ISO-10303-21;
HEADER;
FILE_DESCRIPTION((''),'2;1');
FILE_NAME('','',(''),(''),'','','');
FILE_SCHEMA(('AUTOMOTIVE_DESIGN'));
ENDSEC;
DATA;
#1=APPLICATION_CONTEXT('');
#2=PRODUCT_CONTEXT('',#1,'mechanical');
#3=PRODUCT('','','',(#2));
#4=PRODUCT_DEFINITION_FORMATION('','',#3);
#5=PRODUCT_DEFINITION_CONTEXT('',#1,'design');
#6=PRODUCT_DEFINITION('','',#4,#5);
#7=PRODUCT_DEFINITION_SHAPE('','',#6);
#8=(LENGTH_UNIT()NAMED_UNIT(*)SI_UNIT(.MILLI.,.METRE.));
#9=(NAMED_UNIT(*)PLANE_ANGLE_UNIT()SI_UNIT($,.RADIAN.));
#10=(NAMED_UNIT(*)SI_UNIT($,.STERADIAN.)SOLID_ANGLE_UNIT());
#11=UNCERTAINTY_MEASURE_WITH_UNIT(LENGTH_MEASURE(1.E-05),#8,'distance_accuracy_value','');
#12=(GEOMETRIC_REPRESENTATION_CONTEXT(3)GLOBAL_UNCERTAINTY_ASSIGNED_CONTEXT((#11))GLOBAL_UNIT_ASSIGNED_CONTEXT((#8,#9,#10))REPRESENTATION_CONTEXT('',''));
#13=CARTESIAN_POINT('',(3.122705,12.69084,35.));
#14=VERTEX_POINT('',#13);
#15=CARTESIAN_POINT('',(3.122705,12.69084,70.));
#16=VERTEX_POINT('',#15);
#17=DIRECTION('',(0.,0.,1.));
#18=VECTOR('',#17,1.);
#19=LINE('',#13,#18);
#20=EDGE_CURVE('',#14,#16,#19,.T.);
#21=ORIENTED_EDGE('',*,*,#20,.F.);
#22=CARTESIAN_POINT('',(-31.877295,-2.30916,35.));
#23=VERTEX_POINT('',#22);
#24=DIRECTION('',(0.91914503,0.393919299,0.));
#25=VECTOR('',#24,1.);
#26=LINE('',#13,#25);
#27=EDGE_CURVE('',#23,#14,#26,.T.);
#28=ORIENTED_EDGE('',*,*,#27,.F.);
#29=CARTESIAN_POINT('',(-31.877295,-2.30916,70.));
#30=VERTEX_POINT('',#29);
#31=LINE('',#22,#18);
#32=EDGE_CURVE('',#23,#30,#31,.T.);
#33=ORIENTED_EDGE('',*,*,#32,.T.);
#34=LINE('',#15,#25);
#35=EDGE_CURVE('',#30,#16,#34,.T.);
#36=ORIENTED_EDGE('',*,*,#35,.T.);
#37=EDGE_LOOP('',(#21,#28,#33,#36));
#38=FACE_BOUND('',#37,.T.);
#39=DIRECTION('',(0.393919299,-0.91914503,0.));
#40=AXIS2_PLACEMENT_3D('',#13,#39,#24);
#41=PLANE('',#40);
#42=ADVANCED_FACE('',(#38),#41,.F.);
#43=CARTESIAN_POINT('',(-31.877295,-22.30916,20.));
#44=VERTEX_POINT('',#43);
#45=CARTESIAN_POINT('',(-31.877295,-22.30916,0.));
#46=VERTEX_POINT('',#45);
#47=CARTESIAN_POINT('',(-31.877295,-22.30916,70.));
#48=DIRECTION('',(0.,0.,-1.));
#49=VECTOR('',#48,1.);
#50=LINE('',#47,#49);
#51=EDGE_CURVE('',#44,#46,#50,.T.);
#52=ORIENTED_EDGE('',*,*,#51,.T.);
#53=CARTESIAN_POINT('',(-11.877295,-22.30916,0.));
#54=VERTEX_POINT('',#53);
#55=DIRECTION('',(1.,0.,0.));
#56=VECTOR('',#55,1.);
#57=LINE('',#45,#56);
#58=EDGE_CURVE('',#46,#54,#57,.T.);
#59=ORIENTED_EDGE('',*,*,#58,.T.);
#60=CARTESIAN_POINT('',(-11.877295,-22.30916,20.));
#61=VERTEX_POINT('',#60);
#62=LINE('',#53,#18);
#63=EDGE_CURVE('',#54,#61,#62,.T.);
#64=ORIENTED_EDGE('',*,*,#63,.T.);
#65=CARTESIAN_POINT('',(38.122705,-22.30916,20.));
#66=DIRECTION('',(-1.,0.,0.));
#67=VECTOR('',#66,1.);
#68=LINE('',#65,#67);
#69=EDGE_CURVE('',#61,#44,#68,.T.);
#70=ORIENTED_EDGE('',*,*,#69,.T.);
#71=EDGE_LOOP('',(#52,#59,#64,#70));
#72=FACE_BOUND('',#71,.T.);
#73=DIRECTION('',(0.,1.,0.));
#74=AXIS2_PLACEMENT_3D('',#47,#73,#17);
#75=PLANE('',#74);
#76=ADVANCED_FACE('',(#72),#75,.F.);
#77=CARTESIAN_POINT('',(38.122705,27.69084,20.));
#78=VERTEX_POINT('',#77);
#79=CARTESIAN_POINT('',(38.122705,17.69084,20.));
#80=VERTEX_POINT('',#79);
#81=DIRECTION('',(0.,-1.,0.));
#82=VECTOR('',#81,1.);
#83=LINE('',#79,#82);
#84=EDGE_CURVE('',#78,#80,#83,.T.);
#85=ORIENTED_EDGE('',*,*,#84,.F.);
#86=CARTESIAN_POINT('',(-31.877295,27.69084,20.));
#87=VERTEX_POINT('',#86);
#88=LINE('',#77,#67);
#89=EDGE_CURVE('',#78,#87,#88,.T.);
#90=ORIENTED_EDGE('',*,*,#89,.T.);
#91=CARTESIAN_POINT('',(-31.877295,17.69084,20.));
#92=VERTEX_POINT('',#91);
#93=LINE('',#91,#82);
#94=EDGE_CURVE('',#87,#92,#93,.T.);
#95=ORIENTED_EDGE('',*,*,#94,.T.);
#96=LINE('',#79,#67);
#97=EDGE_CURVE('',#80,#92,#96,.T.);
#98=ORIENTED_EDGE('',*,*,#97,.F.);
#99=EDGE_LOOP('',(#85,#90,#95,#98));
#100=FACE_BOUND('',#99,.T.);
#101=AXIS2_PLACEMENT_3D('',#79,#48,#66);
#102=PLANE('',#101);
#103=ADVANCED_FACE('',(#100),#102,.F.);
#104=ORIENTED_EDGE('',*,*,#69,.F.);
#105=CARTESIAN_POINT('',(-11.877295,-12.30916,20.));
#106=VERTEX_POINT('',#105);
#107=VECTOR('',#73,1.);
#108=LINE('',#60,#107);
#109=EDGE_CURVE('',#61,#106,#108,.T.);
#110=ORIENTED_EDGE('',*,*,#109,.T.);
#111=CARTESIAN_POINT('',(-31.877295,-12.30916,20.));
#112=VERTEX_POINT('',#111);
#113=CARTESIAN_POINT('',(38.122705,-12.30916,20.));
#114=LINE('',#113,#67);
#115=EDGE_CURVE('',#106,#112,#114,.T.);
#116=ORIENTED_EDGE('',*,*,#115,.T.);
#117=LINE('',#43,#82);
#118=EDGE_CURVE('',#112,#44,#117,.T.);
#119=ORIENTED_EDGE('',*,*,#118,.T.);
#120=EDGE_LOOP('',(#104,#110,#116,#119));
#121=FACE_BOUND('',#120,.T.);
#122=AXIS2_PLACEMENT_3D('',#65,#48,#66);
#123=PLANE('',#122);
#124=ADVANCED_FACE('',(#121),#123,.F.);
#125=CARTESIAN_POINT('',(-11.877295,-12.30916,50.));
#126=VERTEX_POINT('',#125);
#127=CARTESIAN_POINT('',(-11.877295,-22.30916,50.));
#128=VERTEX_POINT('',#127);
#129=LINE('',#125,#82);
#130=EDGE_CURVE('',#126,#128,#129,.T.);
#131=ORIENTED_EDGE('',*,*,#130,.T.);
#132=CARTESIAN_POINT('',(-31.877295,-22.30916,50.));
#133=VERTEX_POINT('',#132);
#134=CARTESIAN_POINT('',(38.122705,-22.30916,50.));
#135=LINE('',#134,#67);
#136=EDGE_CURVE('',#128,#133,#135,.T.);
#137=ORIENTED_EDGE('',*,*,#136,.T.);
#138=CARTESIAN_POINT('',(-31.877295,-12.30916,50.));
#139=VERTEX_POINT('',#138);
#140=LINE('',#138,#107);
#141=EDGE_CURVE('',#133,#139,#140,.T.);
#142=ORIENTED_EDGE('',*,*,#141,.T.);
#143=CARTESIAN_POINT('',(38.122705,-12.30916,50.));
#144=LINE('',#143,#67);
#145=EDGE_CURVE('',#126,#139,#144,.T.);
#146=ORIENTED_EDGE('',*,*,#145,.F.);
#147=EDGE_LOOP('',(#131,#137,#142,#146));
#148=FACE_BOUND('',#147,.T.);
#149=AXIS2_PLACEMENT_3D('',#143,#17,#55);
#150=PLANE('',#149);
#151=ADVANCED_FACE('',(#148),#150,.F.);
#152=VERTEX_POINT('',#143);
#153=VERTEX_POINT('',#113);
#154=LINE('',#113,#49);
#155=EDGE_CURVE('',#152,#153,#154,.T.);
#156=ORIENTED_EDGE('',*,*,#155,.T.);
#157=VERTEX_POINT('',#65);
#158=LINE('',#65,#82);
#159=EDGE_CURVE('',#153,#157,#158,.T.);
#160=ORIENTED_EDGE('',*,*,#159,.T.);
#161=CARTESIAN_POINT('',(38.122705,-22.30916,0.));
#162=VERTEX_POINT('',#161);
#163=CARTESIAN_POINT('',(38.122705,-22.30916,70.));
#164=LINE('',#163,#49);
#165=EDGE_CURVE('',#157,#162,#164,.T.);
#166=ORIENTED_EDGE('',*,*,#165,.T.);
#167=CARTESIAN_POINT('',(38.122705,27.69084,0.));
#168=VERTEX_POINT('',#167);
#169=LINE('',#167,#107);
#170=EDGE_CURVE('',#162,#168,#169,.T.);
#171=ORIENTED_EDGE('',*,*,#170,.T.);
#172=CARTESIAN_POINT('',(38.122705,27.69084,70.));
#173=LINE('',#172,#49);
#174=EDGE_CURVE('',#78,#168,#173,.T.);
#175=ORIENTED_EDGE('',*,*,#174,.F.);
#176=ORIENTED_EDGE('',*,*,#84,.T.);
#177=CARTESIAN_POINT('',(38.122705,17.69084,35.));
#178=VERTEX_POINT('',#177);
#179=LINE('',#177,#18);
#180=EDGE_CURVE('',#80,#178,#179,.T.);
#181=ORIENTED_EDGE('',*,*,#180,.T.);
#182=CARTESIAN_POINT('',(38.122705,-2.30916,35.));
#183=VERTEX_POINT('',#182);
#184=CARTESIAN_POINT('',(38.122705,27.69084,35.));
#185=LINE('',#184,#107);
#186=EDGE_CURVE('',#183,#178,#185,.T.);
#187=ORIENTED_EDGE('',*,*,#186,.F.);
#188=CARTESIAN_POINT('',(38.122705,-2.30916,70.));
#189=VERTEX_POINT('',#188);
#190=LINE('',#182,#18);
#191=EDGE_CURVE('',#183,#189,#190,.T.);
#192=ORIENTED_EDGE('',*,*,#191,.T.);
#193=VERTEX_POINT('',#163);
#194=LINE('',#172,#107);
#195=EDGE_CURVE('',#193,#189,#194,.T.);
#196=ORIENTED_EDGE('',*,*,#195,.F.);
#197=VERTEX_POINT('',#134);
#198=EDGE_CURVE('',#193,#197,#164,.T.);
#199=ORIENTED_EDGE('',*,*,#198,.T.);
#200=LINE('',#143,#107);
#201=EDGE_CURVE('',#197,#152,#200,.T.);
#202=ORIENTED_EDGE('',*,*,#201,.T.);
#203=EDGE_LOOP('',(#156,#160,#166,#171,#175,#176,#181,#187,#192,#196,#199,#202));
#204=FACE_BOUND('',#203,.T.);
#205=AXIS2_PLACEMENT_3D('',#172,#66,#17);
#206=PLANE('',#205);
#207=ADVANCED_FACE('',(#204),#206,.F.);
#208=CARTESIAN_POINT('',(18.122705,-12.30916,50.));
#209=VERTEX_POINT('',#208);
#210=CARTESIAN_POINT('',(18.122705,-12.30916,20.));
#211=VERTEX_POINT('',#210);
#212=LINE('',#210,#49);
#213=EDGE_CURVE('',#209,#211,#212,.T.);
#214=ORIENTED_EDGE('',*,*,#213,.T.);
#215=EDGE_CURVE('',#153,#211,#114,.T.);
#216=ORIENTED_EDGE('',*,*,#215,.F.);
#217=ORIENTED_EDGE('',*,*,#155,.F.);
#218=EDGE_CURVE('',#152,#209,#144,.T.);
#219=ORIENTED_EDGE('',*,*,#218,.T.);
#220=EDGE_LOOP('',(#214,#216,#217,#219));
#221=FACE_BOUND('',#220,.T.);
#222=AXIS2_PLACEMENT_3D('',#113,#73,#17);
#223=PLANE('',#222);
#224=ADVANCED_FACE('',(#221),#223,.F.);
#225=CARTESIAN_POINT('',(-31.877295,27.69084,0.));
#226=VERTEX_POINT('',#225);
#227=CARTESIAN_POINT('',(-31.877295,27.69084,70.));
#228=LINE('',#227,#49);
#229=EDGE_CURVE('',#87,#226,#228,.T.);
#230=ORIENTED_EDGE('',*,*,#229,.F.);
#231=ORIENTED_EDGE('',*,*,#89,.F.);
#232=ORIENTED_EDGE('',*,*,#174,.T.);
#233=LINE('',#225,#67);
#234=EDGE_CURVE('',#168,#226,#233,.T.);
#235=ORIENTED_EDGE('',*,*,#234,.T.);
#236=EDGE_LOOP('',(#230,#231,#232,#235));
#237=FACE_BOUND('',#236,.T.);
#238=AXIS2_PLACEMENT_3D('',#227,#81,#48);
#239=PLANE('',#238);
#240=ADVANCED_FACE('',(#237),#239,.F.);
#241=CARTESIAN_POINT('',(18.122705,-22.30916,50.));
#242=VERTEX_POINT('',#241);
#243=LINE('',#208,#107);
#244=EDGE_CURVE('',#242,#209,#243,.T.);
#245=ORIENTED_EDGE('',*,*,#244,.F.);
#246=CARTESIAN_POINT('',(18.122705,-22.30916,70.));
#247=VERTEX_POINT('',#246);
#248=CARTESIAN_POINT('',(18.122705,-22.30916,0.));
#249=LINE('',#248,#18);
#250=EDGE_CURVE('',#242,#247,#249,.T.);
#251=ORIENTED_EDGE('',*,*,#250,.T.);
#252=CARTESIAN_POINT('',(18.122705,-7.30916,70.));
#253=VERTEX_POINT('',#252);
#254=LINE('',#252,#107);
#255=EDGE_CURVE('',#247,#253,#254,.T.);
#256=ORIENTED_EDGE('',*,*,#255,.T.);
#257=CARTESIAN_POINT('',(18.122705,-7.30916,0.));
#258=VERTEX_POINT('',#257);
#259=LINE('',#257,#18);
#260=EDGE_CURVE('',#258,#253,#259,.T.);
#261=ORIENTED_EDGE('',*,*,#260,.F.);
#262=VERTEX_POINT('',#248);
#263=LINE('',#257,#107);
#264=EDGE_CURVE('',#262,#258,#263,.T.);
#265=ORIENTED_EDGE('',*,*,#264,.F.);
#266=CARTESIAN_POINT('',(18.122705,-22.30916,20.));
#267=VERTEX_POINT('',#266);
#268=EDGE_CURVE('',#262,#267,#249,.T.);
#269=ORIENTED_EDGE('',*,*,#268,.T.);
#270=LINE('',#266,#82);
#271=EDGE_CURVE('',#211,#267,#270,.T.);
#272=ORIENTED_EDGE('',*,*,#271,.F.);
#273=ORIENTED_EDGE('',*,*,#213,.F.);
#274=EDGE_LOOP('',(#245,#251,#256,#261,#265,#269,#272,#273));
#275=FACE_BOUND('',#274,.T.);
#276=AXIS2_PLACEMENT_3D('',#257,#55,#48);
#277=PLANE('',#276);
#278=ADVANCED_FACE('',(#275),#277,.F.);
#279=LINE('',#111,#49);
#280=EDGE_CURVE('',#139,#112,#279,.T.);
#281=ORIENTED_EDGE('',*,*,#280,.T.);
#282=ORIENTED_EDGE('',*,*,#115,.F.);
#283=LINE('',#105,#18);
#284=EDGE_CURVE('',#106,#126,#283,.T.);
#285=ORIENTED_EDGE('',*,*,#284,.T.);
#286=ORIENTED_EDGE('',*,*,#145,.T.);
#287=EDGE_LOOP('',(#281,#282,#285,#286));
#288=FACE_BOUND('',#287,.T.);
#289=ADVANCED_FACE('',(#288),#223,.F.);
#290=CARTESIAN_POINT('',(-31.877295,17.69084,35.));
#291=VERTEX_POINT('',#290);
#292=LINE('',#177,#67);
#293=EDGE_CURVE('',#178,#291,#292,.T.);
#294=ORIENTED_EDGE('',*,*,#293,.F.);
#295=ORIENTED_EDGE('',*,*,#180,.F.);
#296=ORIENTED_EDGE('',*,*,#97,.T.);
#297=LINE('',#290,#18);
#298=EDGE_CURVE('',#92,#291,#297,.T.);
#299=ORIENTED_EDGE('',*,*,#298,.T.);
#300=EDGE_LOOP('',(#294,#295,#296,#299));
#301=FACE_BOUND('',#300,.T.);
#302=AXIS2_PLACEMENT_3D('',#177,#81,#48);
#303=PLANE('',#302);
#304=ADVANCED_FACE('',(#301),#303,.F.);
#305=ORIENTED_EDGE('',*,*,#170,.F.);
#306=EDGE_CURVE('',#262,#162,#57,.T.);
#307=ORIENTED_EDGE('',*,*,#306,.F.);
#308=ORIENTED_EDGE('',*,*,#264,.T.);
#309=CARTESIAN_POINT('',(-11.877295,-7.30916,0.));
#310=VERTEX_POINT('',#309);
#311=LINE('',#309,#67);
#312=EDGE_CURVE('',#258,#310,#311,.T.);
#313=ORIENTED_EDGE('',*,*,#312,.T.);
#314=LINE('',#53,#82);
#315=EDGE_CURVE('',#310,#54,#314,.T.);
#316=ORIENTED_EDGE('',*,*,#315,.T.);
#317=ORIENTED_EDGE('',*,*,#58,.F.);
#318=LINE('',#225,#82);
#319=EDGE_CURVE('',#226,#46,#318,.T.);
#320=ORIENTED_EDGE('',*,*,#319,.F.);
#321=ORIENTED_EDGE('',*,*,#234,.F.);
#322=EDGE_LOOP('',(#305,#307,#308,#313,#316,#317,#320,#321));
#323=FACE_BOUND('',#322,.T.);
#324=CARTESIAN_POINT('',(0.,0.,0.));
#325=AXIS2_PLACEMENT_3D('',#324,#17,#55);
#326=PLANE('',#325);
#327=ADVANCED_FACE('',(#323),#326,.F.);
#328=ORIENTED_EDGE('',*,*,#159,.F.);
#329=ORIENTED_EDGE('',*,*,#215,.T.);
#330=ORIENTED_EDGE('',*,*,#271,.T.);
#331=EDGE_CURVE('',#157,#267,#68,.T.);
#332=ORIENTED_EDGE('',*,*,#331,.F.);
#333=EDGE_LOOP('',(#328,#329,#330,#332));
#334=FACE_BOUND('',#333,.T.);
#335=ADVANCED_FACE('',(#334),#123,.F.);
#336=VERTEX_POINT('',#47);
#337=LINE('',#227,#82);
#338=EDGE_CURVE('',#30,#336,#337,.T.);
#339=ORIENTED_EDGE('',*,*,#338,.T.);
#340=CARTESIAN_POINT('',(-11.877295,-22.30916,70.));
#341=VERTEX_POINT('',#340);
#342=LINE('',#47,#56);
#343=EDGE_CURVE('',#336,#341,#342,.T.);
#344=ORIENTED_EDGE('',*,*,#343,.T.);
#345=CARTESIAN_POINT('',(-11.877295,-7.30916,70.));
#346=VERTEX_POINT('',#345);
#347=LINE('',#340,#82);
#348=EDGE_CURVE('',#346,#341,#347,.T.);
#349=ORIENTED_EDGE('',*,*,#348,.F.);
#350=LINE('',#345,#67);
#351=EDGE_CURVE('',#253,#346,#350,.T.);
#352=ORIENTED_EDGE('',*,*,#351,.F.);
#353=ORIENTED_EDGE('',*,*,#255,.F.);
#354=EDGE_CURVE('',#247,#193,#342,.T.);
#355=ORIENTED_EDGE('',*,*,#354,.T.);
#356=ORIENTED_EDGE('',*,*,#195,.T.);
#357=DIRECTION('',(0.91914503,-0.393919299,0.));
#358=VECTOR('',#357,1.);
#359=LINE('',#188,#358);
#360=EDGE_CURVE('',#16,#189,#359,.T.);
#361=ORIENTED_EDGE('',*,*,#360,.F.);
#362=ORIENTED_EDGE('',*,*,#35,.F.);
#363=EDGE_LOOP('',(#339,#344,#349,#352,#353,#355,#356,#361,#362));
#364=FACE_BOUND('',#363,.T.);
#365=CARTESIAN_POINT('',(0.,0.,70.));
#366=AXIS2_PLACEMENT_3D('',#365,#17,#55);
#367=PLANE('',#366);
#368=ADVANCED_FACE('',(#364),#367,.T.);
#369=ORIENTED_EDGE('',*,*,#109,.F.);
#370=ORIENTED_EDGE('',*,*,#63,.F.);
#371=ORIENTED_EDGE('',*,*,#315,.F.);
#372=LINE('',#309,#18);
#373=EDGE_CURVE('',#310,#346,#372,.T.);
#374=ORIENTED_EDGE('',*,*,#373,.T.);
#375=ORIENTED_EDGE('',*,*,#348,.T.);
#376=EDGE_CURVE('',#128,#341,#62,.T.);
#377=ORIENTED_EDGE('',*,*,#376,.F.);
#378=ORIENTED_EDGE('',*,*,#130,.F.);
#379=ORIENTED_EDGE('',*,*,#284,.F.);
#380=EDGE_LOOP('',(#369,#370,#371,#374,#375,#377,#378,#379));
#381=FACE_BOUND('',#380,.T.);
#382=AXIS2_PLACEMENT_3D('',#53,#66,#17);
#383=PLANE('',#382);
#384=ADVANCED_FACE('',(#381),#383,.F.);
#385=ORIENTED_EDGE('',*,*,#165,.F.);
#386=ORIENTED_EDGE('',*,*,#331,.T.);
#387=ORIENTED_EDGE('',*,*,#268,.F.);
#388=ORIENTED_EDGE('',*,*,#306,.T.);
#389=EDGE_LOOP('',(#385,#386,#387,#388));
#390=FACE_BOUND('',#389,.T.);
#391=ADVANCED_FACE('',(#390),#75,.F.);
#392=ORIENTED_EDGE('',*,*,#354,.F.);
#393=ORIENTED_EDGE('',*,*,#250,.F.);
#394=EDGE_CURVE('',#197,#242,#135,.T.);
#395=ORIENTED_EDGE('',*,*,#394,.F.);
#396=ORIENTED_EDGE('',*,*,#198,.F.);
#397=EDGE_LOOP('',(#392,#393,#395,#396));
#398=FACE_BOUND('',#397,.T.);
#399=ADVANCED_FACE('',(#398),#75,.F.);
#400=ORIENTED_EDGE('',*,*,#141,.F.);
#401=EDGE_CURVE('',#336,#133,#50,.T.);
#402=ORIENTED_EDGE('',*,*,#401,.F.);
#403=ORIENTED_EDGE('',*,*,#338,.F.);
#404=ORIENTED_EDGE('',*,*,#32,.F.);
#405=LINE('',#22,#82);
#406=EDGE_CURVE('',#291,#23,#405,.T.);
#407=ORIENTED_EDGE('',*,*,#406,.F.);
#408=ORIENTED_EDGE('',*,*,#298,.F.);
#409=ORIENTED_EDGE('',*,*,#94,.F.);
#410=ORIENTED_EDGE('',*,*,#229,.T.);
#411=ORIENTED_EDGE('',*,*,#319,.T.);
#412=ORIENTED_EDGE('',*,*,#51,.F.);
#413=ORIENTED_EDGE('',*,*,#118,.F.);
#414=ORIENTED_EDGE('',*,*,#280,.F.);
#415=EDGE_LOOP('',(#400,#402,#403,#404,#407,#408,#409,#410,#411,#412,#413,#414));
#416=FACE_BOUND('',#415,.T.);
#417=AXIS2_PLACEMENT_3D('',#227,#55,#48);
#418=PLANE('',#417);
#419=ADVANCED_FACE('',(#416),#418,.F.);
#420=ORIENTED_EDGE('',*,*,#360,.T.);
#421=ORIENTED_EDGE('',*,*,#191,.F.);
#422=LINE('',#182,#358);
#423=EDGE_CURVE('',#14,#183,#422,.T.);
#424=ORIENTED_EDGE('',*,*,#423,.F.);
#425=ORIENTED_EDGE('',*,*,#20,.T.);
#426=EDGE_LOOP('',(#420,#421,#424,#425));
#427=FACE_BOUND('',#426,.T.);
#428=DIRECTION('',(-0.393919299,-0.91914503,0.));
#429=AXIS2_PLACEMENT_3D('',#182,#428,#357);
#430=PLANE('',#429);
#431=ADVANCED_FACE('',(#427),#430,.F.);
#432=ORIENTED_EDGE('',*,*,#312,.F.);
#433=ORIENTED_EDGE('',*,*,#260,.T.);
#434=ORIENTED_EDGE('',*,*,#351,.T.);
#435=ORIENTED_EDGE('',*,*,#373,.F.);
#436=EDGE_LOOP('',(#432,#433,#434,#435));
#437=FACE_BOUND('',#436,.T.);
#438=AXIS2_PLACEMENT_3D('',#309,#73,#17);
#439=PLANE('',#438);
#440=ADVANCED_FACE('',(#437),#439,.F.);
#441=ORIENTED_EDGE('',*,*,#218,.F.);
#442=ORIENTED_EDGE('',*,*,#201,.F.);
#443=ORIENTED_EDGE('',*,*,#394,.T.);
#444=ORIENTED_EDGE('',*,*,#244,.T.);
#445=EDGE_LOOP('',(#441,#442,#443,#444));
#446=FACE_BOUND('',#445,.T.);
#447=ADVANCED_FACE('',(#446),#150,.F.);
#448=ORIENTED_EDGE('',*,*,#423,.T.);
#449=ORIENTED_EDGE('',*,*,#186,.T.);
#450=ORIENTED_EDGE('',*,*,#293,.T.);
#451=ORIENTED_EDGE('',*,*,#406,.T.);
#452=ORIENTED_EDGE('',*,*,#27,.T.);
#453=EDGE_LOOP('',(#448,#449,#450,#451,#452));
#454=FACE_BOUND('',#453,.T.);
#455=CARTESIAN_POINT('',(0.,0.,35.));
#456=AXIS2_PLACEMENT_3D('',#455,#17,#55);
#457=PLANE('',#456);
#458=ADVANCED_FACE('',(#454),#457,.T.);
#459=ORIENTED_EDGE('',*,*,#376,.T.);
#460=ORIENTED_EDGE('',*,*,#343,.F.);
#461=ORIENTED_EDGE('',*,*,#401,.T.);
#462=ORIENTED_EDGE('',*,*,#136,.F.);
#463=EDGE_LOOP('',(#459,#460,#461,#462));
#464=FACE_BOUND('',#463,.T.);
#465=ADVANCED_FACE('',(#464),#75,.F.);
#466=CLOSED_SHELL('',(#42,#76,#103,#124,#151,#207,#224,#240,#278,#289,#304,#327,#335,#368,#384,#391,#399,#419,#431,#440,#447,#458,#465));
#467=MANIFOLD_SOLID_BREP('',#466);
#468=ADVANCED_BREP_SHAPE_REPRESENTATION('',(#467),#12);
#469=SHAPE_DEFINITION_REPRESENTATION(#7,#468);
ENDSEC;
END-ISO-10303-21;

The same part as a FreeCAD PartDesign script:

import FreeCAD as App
import Part
import Sketcher


def add_polygon(sketch, points):
    """Adds a closed chain of lines whose ends are joined by coincident constraints."""
    first, n = sketch.GeometryCount, len(points)
    for a, b in zip(points, points[1:] + points[:1]):
        sketch.addGeometry(Part.LineSegment(App.Vector(*a, 0), App.Vector(*b, 0)), False)
    for i in range(n):
        sketch.addConstraint(Sketcher.Constraint("Coincident", first + i, 2, first + (i + 1) % n, 1))

doc = App.newDocument("Part")
body = doc.addObject("PartDesign::Body", "Body")

# Sketch on XY plane
sketch1 = body.newObject("Sketcher::SketchObject", "Sketch")
sketch1.AttachmentSupport = (doc.getObject("XY_Plane"), [""])
sketch1.MapMode = "FlatFace"
add_polygon(sketch1, [(-31.877295, 27.69084), (-31.877295, -22.30916), (38.122705, -22.30916), (38.122705, 27.69084)])  # lines 0-3
sketch1.addConstraint([
    Sketcher.Constraint("Vertical", 0),
    Sketcher.Constraint("Horizontal", 1),
    Sketcher.Constraint("Vertical", 2),
    Sketcher.Constraint("Horizontal", 3),
    Sketcher.Constraint("DistanceX", 1, 1, 1, 2, 70.0),
    Sketcher.Constraint("DistanceY", 0, 2, 0, 1, 50.0),
    Sketcher.Constraint("DistanceY", 0, 2, -1, 1, 22.30916),
    Sketcher.Constraint("DistanceX", 0, 2, -1, 1, 31.877295),
])
pad1 = body.newObject("PartDesign::Pad", "Pad")
pad1.Profile = sketch1
pad1.Length = 70

# Sketch on YZ plane
sketch2 = body.newObject("Sketcher::SketchObject", "Sketch001")
sketch2.AttachmentSupport = (doc.getObject("YZ_Plane"), [""])
sketch2.MapMode = "FlatFace"
sketch2.AttachmentOffset = App.Placement(App.Vector(0, 0, -31.877295), App.Rotation())
add_polygon(sketch2, [(-12.30916, 20), (-22.30916, 20), (-22.30916, 50), (-12.30916, 50)])  # lines 0-3
sketch2.addConstraint([
    Sketcher.Constraint("Horizontal", 0),
    Sketcher.Constraint("Vertical", 1),
    Sketcher.Constraint("Horizontal", 2),
    Sketcher.Constraint("Vertical", 3),
    Sketcher.Constraint("DistanceX", 0, 2, 0, 1, 10.0),
    Sketcher.Constraint("DistanceY", 1, 1, 1, 2, 30.0),
    Sketcher.Constraint("DistanceY", -1, 1, 0, 2, 20.0),
    Sketcher.Constraint("DistanceX", 0, 2, -1, 1, 22.30916),
])
pocket1 = body.newObject("PartDesign::Pocket", "Pocket")
pocket1.Profile = sketch2
pocket1.Length = 70
pocket1.Reversed = True

# Sketch on XY plane
sketch3 = body.newObject("Sketcher::SketchObject", "Sketch002")
sketch3.AttachmentSupport = (doc.getObject("XY_Plane"), [""])
sketch3.MapMode = "FlatFace"
sketch3.AttachmentOffset = App.Placement(App.Vector(0, 0, 70), App.Rotation())
add_polygon(sketch3, [(-11.877295, -7.30916), (-11.877295, -22.30916), (18.122705, -22.30916), (18.122705, -7.30916)])  # lines 0-3
sketch3.addConstraint([
    Sketcher.Constraint("Vertical", 0),
    Sketcher.Constraint("Horizontal", 1),
    Sketcher.Constraint("Vertical", 2),
    Sketcher.Constraint("Horizontal", 3),
    Sketcher.Constraint("DistanceX", 1, 1, 1, 2, 30.0),
    Sketcher.Constraint("DistanceY", 0, 2, 0, 1, 15.0),
    Sketcher.Constraint("DistanceY", 0, 2, -1, 1, 22.30916),
    Sketcher.Constraint("DistanceX", 0, 2, -1, 1, 11.877295),
])
pocket2 = body.newObject("PartDesign::Pocket", "Pocket001")
pocket2.Profile = sketch3
pocket2.Length = 70

# Sketch on XY plane
sketch4 = body.newObject("Sketcher::SketchObject", "Sketch003")
sketch4.AttachmentSupport = (doc.getObject("XY_Plane"), [""])
sketch4.MapMode = "FlatFace"
sketch4.AttachmentOffset = App.Placement(App.Vector(0, 0, 70), App.Rotation())
add_polygon(sketch4, [(3.122705, 12.69084), (38.122705, -2.30916), (38.122705, 27.69084), (-31.877295, 27.69084), (-31.877295, -2.30916)])  # lines 0-4
sketch4.addConstraint([
    Sketcher.Constraint("Vertical", 1),
    Sketcher.Constraint("Horizontal", 2),
    Sketcher.Constraint("Vertical", 3),
    Sketcher.Constraint("Horizontal", 0, 2, 3, 2),
    Sketcher.Constraint("Equal", 0, 4),
    Sketcher.Constraint("DistanceX", 2, 2, 2, 1, 70.0),
    Sketcher.Constraint("DistanceY", 1, 1, 1, 2, 30.0),
    Sketcher.Constraint("DistanceY", 0, 2, 4, 2, 15.0),
    Sketcher.Constraint("DistanceY", 0, 2, -1, 1, 2.30916),
    Sketcher.Constraint("DistanceX", -1, 1, 0, 2, 38.122705),
])
pocket3 = body.newObject("PartDesign::Pocket", "Pocket002")
pocket3.Profile = sketch4
pocket3.Length = 35

# Sketch on YZ plane
sketch5 = body.newObject("Sketcher::SketchObject", "Sketch004")
sketch5.AttachmentSupport = (doc.getObject("YZ_Plane"), [""])
sketch5.MapMode = "FlatFace"
sketch5.AttachmentOffset = App.Placement(App.Vector(0, 0, -31.877295), App.Rotation())
add_polygon(sketch5, [(27.69084, 20), (17.69084, 20), (17.69084, 35), (27.69084, 35)])  # lines 0-3
sketch5.addConstraint([
    Sketcher.Constraint("Horizontal", 0),
    Sketcher.Constraint("Vertical", 1),
    Sketcher.Constraint("Horizontal", 2),
    Sketcher.Constraint("Vertical", 3),
    Sketcher.Constraint("DistanceX", 0, 2, 0, 1, 10.0),
    Sketcher.Constraint("DistanceY", 1, 1, 1, 2, 15.0),
    Sketcher.Constraint("DistanceY", -1, 1, 0, 2, 20.0),
    Sketcher.Constraint("DistanceX", -1, 1, 0, 2, 17.69084),
])
pocket4 = body.newObject("PartDesign::Pocket", "Pocket003")
pocket4.Profile = sketch5
pocket4.Length = 70
pocket4.Reversed = True

doc.recompute()
